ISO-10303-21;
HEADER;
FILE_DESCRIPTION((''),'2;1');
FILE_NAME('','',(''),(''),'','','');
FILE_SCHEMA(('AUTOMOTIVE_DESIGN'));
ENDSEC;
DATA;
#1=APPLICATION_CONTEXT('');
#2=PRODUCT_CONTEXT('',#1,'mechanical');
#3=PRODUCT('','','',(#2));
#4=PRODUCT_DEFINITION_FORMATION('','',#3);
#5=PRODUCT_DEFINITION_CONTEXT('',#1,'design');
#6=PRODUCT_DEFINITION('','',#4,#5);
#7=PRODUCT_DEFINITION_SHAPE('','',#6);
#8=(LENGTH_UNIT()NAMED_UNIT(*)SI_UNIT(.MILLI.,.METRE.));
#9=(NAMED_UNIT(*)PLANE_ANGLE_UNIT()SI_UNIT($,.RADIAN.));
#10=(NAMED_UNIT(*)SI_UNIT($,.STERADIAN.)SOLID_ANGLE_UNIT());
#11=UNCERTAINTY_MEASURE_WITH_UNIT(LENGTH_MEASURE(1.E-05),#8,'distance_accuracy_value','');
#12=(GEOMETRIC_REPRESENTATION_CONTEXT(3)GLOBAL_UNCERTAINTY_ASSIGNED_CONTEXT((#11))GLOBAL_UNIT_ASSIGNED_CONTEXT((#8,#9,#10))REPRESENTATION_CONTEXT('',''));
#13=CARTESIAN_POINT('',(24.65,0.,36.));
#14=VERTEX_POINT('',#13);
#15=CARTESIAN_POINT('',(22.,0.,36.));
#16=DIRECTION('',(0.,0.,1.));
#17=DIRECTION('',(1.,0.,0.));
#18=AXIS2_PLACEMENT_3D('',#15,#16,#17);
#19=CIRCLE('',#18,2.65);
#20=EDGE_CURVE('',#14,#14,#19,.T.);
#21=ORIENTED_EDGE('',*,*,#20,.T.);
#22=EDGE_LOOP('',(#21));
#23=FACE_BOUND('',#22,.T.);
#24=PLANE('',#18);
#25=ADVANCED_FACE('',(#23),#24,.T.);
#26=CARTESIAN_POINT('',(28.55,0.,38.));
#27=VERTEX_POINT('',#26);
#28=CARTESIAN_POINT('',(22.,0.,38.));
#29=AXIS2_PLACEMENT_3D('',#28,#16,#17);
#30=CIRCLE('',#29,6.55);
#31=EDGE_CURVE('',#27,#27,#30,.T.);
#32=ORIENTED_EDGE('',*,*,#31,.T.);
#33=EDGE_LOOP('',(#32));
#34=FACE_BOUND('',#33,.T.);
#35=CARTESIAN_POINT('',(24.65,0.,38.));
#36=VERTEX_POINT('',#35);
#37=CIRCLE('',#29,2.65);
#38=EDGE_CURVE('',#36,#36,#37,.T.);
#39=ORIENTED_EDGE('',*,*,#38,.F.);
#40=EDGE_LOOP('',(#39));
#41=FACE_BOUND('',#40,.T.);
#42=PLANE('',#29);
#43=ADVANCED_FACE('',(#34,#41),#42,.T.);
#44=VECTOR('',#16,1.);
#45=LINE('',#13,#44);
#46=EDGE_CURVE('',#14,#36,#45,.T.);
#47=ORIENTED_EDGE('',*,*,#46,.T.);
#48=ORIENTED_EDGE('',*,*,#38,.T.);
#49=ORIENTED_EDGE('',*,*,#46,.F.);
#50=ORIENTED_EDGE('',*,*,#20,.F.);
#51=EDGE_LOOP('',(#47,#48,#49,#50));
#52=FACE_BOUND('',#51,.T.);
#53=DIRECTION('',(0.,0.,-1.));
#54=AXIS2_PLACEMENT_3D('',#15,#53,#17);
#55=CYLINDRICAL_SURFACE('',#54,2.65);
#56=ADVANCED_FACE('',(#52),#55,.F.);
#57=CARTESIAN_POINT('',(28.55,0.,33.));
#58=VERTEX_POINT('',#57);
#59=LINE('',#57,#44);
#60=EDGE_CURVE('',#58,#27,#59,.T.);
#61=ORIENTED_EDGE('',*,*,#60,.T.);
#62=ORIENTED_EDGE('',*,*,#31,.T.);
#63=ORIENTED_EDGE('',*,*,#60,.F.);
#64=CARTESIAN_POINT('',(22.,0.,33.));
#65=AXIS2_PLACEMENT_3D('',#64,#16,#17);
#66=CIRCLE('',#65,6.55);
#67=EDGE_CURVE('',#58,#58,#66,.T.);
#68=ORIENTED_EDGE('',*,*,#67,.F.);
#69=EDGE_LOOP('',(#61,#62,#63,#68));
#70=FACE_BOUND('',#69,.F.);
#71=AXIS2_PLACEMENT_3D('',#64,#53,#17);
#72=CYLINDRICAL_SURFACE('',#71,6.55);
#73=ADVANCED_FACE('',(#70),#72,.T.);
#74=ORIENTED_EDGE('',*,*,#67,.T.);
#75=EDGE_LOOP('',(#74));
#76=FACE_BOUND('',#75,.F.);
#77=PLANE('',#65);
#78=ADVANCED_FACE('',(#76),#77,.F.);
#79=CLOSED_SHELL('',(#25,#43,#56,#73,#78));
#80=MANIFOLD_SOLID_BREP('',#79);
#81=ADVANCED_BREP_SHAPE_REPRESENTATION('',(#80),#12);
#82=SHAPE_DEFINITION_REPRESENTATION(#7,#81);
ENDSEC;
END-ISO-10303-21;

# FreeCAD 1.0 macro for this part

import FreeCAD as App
import Part
import Sketcher
Q = App.Units.Quantity

doc = App.newDocument("Part")
params = doc.addObject("Spreadsheet::Sheet", "Params")
for row, (alias, value) in enumerate([
    ("sketch1_diameter", "5.3 mm"),
    ("pad1_length", "2 mm"),
    ("sketch2_diameter", "13.1 mm"),
    ("pad2_length", "5 mm"),
], start=1):
    params.set(f"A{row}", alias)
    params.set(f"B{row}", "=" + value)
    params.setAlias(f"B{row}", alias)

body = doc.addObject("PartDesign::Body", "Body")

sketch1 = doc.addObject("Sketcher::SketchObject", "Sketch")
body.addObject(sketch1)
sketch1.AttachmentSupport = (doc.XY_Plane, [""])
sketch1.MapMode = "FlatFace"
sketch1.AttachmentOffset = App.Placement(App.Vector(0, 0, 3), App.Rotation())
sketch1.addGeometry(Part.Circle(App.Vector(0, 0, 0), App.Vector(0, 0, 1), 2.65), False)
sketch1.addConstraint([
    Sketcher.Constraint("Coincident", 0, 3, -1, 1),
    Sketcher.Constraint("Diameter", 0, Q("5.3 mm")),
])
sketch1.setExpression("Constraints[1]", "Params.sketch1_diameter")
pad1 = doc.addObject("PartDesign::Pad", "Pad")
body.addObject(pad1)
pad1.Profile = sketch1
pad1.setExpression("Length", "Params.pad1_length")
body2 = doc.addObject("PartDesign::Body", "Body001")

sketch2 = doc.addObject("Sketcher::SketchObject", "Sketch001")
body2.addObject(sketch2)
sketch2.AttachmentSupport = (doc.getObject("XY_Plane001"), [""])
sketch2.MapMode = "FlatFace"
sketch2.addGeometry(Part.Circle(App.Vector(0, 0, 0), App.Vector(0, 0, 1), 6.55), False)
sketch2.addConstraint([
    Sketcher.Constraint("Coincident", 0, 3, -1, 1),
    Sketcher.Constraint("Diameter", 0, Q("13.1 mm")),
])
sketch2.setExpression("Constraints[1]", "Params.sketch2_diameter")
pad2 = doc.addObject("PartDesign::Pad", "Pad001")
body2.addObject(pad2)
pad2.Profile = sketch2
pad2.setExpression("Length", "Params.pad2_length")
doc.recompute()

boolean = doc.addObject("PartDesign::Boolean", "Boolean")
body2.addObject(boolean)
boolean.Type = "Cut"
boolean.addObjects([body])
body3 = doc.addObject("PartDesign::Body", "Body002")
doc.recompute()

body2.Placement = App.Placement(App.Vector(22, 0, 33), App.Rotation(App.Vector(0, 0, 1), 0))
boolean2 = doc.addObject("PartDesign::Boolean", "Boolean001")
body3.addObject(boolean2)
boolean2.Type = "Fuse"
boolean2.addObjects([body2])

doc.recompute()
